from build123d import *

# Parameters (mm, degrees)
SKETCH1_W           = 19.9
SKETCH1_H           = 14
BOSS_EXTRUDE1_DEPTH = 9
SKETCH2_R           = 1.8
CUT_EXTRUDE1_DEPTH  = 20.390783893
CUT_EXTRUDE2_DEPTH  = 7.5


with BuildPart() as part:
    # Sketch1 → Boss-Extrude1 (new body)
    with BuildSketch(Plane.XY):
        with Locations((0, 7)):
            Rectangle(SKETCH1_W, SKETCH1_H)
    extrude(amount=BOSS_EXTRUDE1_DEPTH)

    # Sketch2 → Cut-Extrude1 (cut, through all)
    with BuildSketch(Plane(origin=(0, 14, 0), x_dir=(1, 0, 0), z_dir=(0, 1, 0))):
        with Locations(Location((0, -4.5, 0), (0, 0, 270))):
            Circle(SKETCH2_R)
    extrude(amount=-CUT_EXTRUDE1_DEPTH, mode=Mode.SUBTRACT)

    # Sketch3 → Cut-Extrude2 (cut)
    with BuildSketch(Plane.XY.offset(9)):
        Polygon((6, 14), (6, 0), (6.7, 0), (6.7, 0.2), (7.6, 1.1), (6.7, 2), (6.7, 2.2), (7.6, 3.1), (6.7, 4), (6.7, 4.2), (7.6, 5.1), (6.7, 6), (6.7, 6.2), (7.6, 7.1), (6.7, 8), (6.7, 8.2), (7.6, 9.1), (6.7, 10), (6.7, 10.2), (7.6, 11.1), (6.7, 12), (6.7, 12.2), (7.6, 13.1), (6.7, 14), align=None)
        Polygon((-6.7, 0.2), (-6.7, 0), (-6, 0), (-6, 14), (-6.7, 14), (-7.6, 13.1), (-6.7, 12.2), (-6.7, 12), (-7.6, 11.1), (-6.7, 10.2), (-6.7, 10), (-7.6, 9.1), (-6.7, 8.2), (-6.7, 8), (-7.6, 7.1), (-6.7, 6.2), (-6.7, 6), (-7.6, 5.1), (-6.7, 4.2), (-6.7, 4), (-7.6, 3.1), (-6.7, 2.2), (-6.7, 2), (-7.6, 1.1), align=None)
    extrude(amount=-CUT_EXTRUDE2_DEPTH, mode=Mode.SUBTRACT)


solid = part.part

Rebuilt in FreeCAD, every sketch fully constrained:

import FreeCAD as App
import Part
import Sketcher

doc = App.newDocument("Part")
body = doc.addObject("PartDesign::Body", "Body")

sketch1 = body.newObject("Sketcher::SketchObject", "Sketch")
sketch1.AttachmentSupport = (doc.getObject("XY_Plane"), [""])
sketch1.MapMode = "FlatFace"
sketch1.addGeometry(Part.LineSegment(App.Vector(-10, 14, 0), App.Vector(-10, 0, 0)), False)
sketch1.addGeometry(Part.LineSegment(App.Vector(-10, 0, 0), App.Vector(10, 0, 0)), False)
sketch1.addGeometry(Part.LineSegment(App.Vector(10, 0, 0), App.Vector(10, 14, 0)), False)
sketch1.addGeometry(Part.LineSegment(App.Vector(10, 14, 0), App.Vector(-10, 14, 0)), False)
sketch1.addConstraint(Sketcher.Constraint("Coincident", 0, 2, 1, 1))
sketch1.addConstraint(Sketcher.Constraint("Coincident", 1, 2, 2, 1))
sketch1.addConstraint(Sketcher.Constraint("Coincident", 2, 2, 3, 1))
sketch1.addConstraint(Sketcher.Constraint("Coincident", 3, 2, 0, 1))
sketch1.addConstraint(Sketcher.Constraint("Vertical", 0))
sketch1.addConstraint(Sketcher.Constraint("Horizontal", 1))
sketch1.addConstraint(Sketcher.Constraint("Vertical", 2))
sketch1.addConstraint(Sketcher.Constraint("Horizontal", 3))
sketch1.addConstraint(Sketcher.Constraint("Symmetric", 0, 2, 1, 2, -1, 1))
sketch1.addConstraint(Sketcher.Constraint("DistanceY", 0, 2, 0, 1, 14.0))
sketch1.addConstraint(Sketcher.Constraint("DistanceX", 1, 1, 1, 2, 19.9))
pad1 = body.newObject("PartDesign::Pad", "Pad")
pad1.Profile = sketch1
pad1.Length = 9

sketch2 = body.newObject("Sketcher::SketchObject", "Sketch001")
sketch2.AttachmentSupport = (doc.getObject("XZ_Plane"), [""])
sketch2.MapMode = "FlatFace"
sketch2.AttachmentOffset = App.Placement(App.Vector(0, 0, -14), App.Rotation())
sketch2.addGeometry(Part.Circle(App.Vector(0, 4.5, 0), App.Vector(0, 0, 1), 1.8), False)
sketch2.addConstraint(Sketcher.Constraint("PointOnObject", 0, 3, -2))
sketch2.addConstraint(Sketcher.Constraint("Diameter", 0, 3.6))
sketch2.addConstraint(Sketcher.Constraint("DistanceY", -1, 1, 0, 3, 4.5))
pocket1 = body.newObject("PartDesign::Pocket", "Pocket")
pocket1.Profile = sketch2
pocket1.Type = "ThroughAll"
pocket1.Reversed = True

sketch3 = body.newObject("Sketcher::SketchObject", "Sketch002")
sketch3.AttachmentSupport = (doc.getObject("XY_Plane"), [""])
sketch3.MapMode = "FlatFace"
sketch3.AttachmentOffset = App.Placement(App.Vector(0, 0, 9), App.Rotation())
sketch3.addGeometry(Part.LineSegment(App.Vector(6, 14, 0), App.Vector(6, 0, 0)), False)
sketch3.addGeometry(Part.LineSegment(App.Vector(6, 0, 0), App.Vector(6.7, 0, 0)), False)
sketch3.addGeometry(Part.LineSegment(App.Vector(6.7, 0, 0), App.Vector(6.7, 0.2, 0)), False)
sketch3.addGeometry(Part.LineSegment(App.Vector(6.7, 0.2, 0), App.Vector(7.6, 1.1, 0)), False)
sketch3.addGeometry(Part.LineSegment(App.Vector(7.6, 1.1, 0), App.Vector(6.7, 2, 0)), False)
sketch3.addGeometry(Part.LineSegment(App.Vector(6.7, 2, 0), App.Vector(6.7, 2.2, 0)), False)
sketch3.addGeometry(Part.LineSegment(App.Vector(6.7, 2.2, 0), App.Vector(7.6, 3.1, 0)), False)
sketch3.addGeometry(Part.LineSegment(App.Vector(7.6, 3.1, 0), App.Vector(6.7, 4, 0)), False)
sketch3.addGeometry(Part.LineSegment(App.Vector(6.7, 4, 0), App.Vector(6.7, 4.2, 0)), False)
sketch3.addGeometry(Part.LineSegment(App.Vector(6.7, 4.2, 0), App.Vector(7.6, 5.1, 0)), False)
sketch3.addGeometry(Part.LineSegment(App.Vector(7.6, 5.1, 0), App.Vector(6.7, 6, 0)), False)
sketch3.addGeometry(Part.LineSegment(App.Vector(6.7, 6, 0), App.Vector(6.7, 6.2, 0)), False)
sketch3.addGeometry(Part.LineSegment(App.Vector(6.7, 6.2, 0), App.Vector(7.6, 7.1, 0)), False)
sketch3.addGeometry(Part.LineSegment(App.Vector(7.6, 7.1, 0), App.Vector(6.7, 8, 0)), False)
sketch3.addGeometry(Part.LineSegment(App.Vector(6.7, 8, 0), App.Vector(6.7, 8.2, 0)), False)
sketch3.addGeometry(Part.LineSegment(App.Vector(6.7, 8.2, 0), App.Vector(7.6, 9.1, 0)), False)
sketch3.addGeometry(Part.LineSegment(App.Vector(7.6, 9.1, 0), App.Vector(6.7, 10, 0)), False)
sketch3.addGeometry(Part.LineSegment(App.Vector(6.7, 10, 0), App.Vector(6.7, 10.2, 0)), False)
sketch3.addGeometry(Part.LineSegment(App.Vector(6.7, 10.2, 0), App.Vector(7.6, 11.1, 0)), False)
sketch3.addGeometry(Part.LineSegment(App.Vector(7.6, 11.1, 0), App.Vector(6.7, 12, 0)), False)
sketch3.addGeometry(Part.LineSegment(App.Vector(6.7, 12, 0), App.Vector(6.7, 12.2, 0)), False)
sketch3.addGeometry(Part.LineSegment(App.Vector(6.7, 12.2, 0), App.Vector(7.6, 13.1, 0)), False)
sketch3.addGeometry(Part.LineSegment(App.Vector(7.6, 13.1, 0), App.Vector(6.7, 14, 0)), False)
sketch3.addGeometry(Part.LineSegment(App.Vector(6.7, 14, 0), App.Vector(6, 14, 0)), False)
sketch3.addGeometry(Part.LineSegment(App.Vector(-6.7, 0.2, 0), App.Vector(-6.7, 0, 0)), False)
sketch3.addGeometry(Part.LineSegment(App.Vector(-6.7, 0, 0), App.Vector(-6, 0, 0)), False)
sketch3.addGeometry(Part.LineSegment(App.Vector(-6, 0, 0), App.Vector(-6, 14, 0)), False)
sketch3.addGeometry(Part.LineSegment(App.Vector(-6, 14, 0), App.Vector(-6.7, 14, 0)), False)
sketch3.addGeometry(Part.LineSegment(App.Vector(-6.7, 14, 0), App.Vector(-7.6, 13.1, 0)), False)
sketch3.addGeometry(Part.LineSegment(App.Vector(-7.6, 13.1, 0), App.Vector(-6.7, 12.2, 0)), False)
sketch3.addGeometry(Part.LineSegment(App.Vector(-6.7, 12.2, 0), App.Vector(-6.7, 12, 0)), False)
sketch3.addGeometry(Part.LineSegment(App.Vector(-6.7, 12, 0), App.Vector(-7.6, 11.1, 0)), False)
sketch3.addGeometry(Part.LineSegment(App.Vector(-7.6, 11.1, 0), App.Vector(-6.7, 10.2, 0)), False)
sketch3.addGeometry(Part.LineSegment(App.Vector(-6.7, 10.2, 0), App.Vector(-6.7, 10, 0)), False)
sketch3.addGeometry(Part.LineSegment(App.Vector(-6.7, 10, 0), App.Vector(-7.6, 9.1, 0)), False)
sketch3.addGeometry(Part.LineSegment(App.Vector(-7.6, 9.1, 0), App.Vector(-6.7, 8.2, 0)), False)
sketch3.addGeometry(Part.LineSegment(App.Vector(-6.7, 8.2, 0), App.Vector(-6.7, 8, 0)), False)
sketch3.addGeometry(Part.LineSegment(App.Vector(-6.7, 8, 0), App.Vector(-7.6, 7.1, 0)), False)
sketch3.addGeometry(Part.LineSegment(App.Vector(-7.6, 7.1, 0), App.Vector(-6.7, 6.2, 0)), False)
sketch3.addGeometry(Part.LineSegment(App.Vector(-6.7, 6.2, 0), App.Vector(-6.7, 6, 0)), False)
sketch3.addGeometry(Part.LineSegment(App.Vector(-6.7, 6, 0), App.Vector(-7.6, 5.1, 0)), False)
sketch3.addGeometry(Part.LineSegment(App.Vector(-7.6, 5.1, 0), App.Vector(-6.7, 4.2, 0)), False)
sketch3.addGeometry(Part.LineSegment(App.Vector(-6.7, 4.2, 0), App.Vector(-6.7, 4, 0)), False)
sketch3.addGeometry(Part.LineSegment(App.Vector(-6.7, 4, 0), App.Vector(-7.6, 3.1, 0)), False)
sketch3.addGeometry(Part.LineSegment(App.Vector(-7.6, 3.1, 0), App.Vector(-6.7, 2.2, 0)), False)
sketch3.addGeometry(Part.LineSegment(App.Vector(-6.7, 2.2, 0), App.Vector(-6.7, 2, 0)), False)
sketch3.addGeometry(Part.LineSegment(App.Vector(-6.7, 2, 0), App.Vector(-7.6, 1.1, 0)), False)
sketch3.addGeometry(Part.LineSegment(App.Vector(-7.6, 1.1, 0), App.Vector(-6.7, 0.2, 0)), False)
sketch3.addConstraint(Sketcher.Constraint("Coincident", 0, 2, 1, 1))
sketch3.addConstraint(Sketcher.Constraint("Coincident", 1, 2, 2, 1))
sketch3.addConstraint(Sketcher.Constraint("Coincident", 2, 2, 3, 1))
sketch3.addConstraint(Sketcher.Constraint("Coincident", 3, 2, 4, 1))
sketch3.addConstraint(Sketcher.Constraint("Coincident", 4, 2, 5, 1))
sketch3.addConstraint(Sketcher.Constraint("Coincident", 5, 2, 6, 1))
sketch3.addConstraint(Sketcher.Constraint("Coincident", 6, 2, 7, 1))
sketch3.addConstraint(Sketcher.Constraint("Coincident", 7, 2, 8, 1))
sketch3.addConstraint(Sketcher.Constraint("Coincident", 8, 2, 9, 1))
sketch3.addConstraint(Sketcher.Constraint("Coincident", 9, 2, 10, 1))
sketch3.addConstraint(Sketcher.Constraint("Coincident", 10, 2, 11, 1))
sketch3.addConstraint(Sketcher.Constraint("Coincident", 11, 2, 12, 1))
sketch3.addConstraint(Sketcher.Constraint("Coincident", 12, 2, 13, 1))
sketch3.addConstraint(Sketcher.Constraint("Coincident", 13, 2, 14, 1))
sketch3.addConstraint(Sketcher.Constraint("Coincident", 14, 2, 15, 1))
sketch3.addConstraint(Sketcher.Constraint("Coincident", 15, 2, 16, 1))
sketch3.addConstraint(Sketcher.Constraint("Coincident", 16, 2, 17, 1))
sketch3.addConstraint(Sketcher.Constraint("Coincident", 17, 2, 18, 1))
sketch3.addConstraint(Sketcher.Constraint("Coincident", 18, 2, 19, 1))
sketch3.addConstraint(Sketcher.Constraint("Coincident", 19, 2, 20, 1))
sketch3.addConstraint(Sketcher.Constraint("Coincident", 20, 2, 21, 1))
sketch3.addConstraint(Sketcher.Constraint("Coincident", 21, 2, 22, 1))
sketch3.addConstraint(Sketcher.Constraint("Coincident", 22, 2, 23, 1))
sketch3.addConstraint(Sketcher.Constraint("Coincident", 23, 2, 0, 1))
sketch3.addConstraint(Sketcher.Constraint("Coincident", 24, 2, 25, 1))
sketch3.addConstraint(Sketcher.Constraint("Coincident", 25, 2, 26, 1))
sketch3.addConstraint(Sketcher.Constraint("Coincident", 26, 2, 27, 1))
sketch3.addConstraint(Sketcher.Constraint("Coincident", 27, 2, 28, 1))
sketch3.addConstraint(Sketcher.Constraint("Coincident", 28, 2, 29, 1))
sketch3.addConstraint(Sketcher.Constraint("Coincident", 29, 2, 30, 1))
sketch3.addConstraint(Sketcher.Constraint("Coincident", 30, 2, 31, 1))
sketch3.addConstraint(Sketcher.Constraint("Coincident", 31, 2, 32, 1))
sketch3.addConstraint(Sketcher.Constraint("Coincident", 32, 2, 33, 1))
sketch3.addConstraint(Sketcher.Constraint("Coincident", 33, 2, 34, 1))
sketch3.addConstraint(Sketcher.Constraint("Coincident", 34, 2, 35, 1))
sketch3.addConstraint(Sketcher.Constraint("Coincident", 35, 2, 36, 1))
sketch3.addConstraint(Sketcher.Constraint("Coincident", 36, 2, 37, 1))
sketch3.addConstraint(Sketcher.Constraint("Coincident", 37, 2, 38, 1))
sketch3.addConstraint(Sketcher.Constraint("Coincident", 38, 2, 39, 1))
sketch3.addConstraint(Sketcher.Constraint("Coincident", 39, 2, 40, 1))
sketch3.addConstraint(Sketcher.Constraint("Coincident", 40, 2, 41, 1))
sketch3.addConstraint(Sketcher.Constraint("Coincident", 41, 2, 42, 1))
sketch3.addConstraint(Sketcher.Constraint("Coincident", 42, 2, 43, 1))
sketch3.addConstraint(Sketcher.Constraint("Coincident", 43, 2, 44, 1))
sketch3.addConstraint(Sketcher.Constraint("Coincident", 44, 2, 45, 1))
sketch3.addConstraint(Sketcher.Constraint("Coincident", 45, 2, 46, 1))
sketch3.addConstraint(Sketcher.Constraint("Coincident", 46, 2, 47, 1))
sketch3.addConstraint(Sketcher.Constraint("Coincident", 47, 2, 24, 1))
sketch3.addConstraint(Sketcher.Constraint("Vertical", 0))
sketch3.addConstraint(Sketcher.Constraint("Horizontal", 1))
sketch3.addConstraint(Sketcher.Constraint("Vertical", 2))
sketch3.addConstraint(Sketcher.Constraint("Vertical", 5))
sketch3.addConstraint(Sketcher.Constraint("Vertical", 8))
sketch3.addConstraint(Sketcher.Constraint("Vertical", 11))
sketch3.addConstraint(Sketcher.Constraint("Vertical", 14))
sketch3.addConstraint(Sketcher.Constraint("Vertical", 17))
sketch3.addConstraint(Sketcher.Constraint("Vertical", 20))
sketch3.addConstraint(Sketcher.Constraint("Horizontal", 23))
sketch3.addConstraint(Sketcher.Constraint("Vertical", 24))
sketch3.addConstraint(Sketcher.Constraint("Horizontal", 25))
sketch3.addConstraint(Sketcher.Constraint("Vertical", 26))
sketch3.addConstraint(Sketcher.Constraint("Horizontal", 27))
sketch3.addConstraint(Sketcher.Constraint("Vertical", 30))
sketch3.addConstraint(Sketcher.Constraint("Vertical", 33))
sketch3.addConstraint(Sketcher.Constraint("Vertical", 36))
sketch3.addConstraint(Sketcher.Constraint("Vertical", 39))
sketch3.addConstraint(Sketcher.Constraint("Vertical", 42))
sketch3.addConstraint(Sketcher.Constraint("Vertical", 45))
sketch3.addConstraint(Sketcher.Constraint("Symmetric", 1, 2, 24, 2, -1, 1))
sketch3.addConstraint(Sketcher.Constraint("Symmetric", 0, 2, 25, 2, -2))
sketch3.addConstraint(Sketcher.Constraint("Symmetric", 22, 2, 27, 2, -2))
sketch3.addConstraint(Sketcher.Constraint("Symmetric", 21, 2, 28, 2, -2))
sketch3.addConstraint(Sketcher.Constraint("Symmetric", 20, 2, 29, 2, -2))
sketch3.addConstraint(Sketcher.Constraint("Symmetric", 18, 2, 31, 2, -2))
sketch3.addConstraint(Sketcher.Constraint("Symmetric", 17, 2, 32, 2, -2))
sketch3.addConstraint(Sketcher.Constraint("Symmetric", 15, 2, 34, 2, -2))
sketch3.addConstraint(Sketcher.Constraint("Symmetric", 14, 2, 35, 2, -2))
sketch3.addConstraint(Sketcher.Constraint("Symmetric", 12, 2, 37, 2, -2))
sketch3.addConstraint(Sketcher.Constraint("Symmetric", 11, 2, 38, 2, -2))
sketch3.addConstraint(Sketcher.Constraint("Symmetric", 9, 2, 40, 2, -2))
sketch3.addConstraint(Sketcher.Constraint("Symmetric", 8, 2, 41, 2, -2))
sketch3.addConstraint(Sketcher.Constraint("Symmetric", 6, 2, 43, 2, -2))
sketch3.addConstraint(Sketcher.Constraint("Symmetric", 5, 2, 44, 2, -2))
sketch3.addConstraint(Sketcher.Constraint("Symmetric", 3, 2, 46, 2, -2))
sketch3.addConstraint(Sketcher.Constraint("Perpendicular", 3, 4))
sketch3.addConstraint(Sketcher.Constraint("Perpendicular", 4, 6))
sketch3.addConstraint(Sketcher.Constraint("Perpendicular", 6, 7))
sketch3.addConstraint(Sketcher.Constraint("Perpendicular", 7, 9))
sketch3.addConstraint(Sketcher.Constraint("Perpendicular", 9, 10))
sketch3.addConstraint(Sketcher.Constraint("Perpendicular", 10, 12))
sketch3.addConstraint(Sketcher.Constraint("Perpendicular", 12, 13))
sketch3.addConstraint(Sketcher.Constraint("Perpendicular", 13, 15))
sketch3.addConstraint(Sketcher.Constraint("Perpendicular", 15, 16))
sketch3.addConstraint(Sketcher.Constraint("Perpendicular", 16, 18))
sketch3.addConstraint(Sketcher.Constraint("Perpendicular", 18, 19))
sketch3.addConstraint(Sketcher.Constraint("Perpendicular", 19, 21))
sketch3.addConstraint(Sketcher.Constraint("Perpendicular", 21, 22))
sketch3.addConstraint(Sketcher.Constraint("Perpendicular", 22, 28))
sketch3.addConstraint(Sketcher.Constraint("Perpendicular", 29, 31))
sketch3.addConstraint(Sketcher.Constraint("Perpendicular", 32, 34))
sketch3.addConstraint(Sketcher.Constraint("Perpendicular", 35, 37))
sketch3.addConstraint(Sketcher.Constraint("Perpendicular", 38, 40))
sketch3.addConstraint(Sketcher.Constraint("Perpendicular", 41, 43))
sketch3.addConstraint(Sketcher.Constraint("Perpendicular", 44, 46))
sketch3.addConstraint(Sketcher.Constraint("Perpendicular", 46, 47))
sketch3.addConstraint(Sketcher.Constraint("Vertical", 2, 2, 4, 2))
sketch3.addConstraint(Sketcher.Constraint("Vertical", 3, 2, 6, 2))
sketch3.addConstraint(Sketcher.Constraint("Vertical", 5, 2, 7, 2))
sketch3.addConstraint(Sketcher.Constraint("Vertical", 6, 2, 9, 2))
sketch3.addConstraint(Sketcher.Constraint("Vertical", 8, 2, 10, 2))
sketch3.addConstraint(Sketcher.Constraint("Vertical", 9, 2, 12, 2))
sketch3.addConstraint(Sketcher.Constraint("Vertical", 11, 2, 13, 2))
sketch3.addConstraint(Sketcher.Constraint("Vertical", 12, 2, 15, 2))
sketch3.addConstraint(Sketcher.Constraint("Vertical", 14, 2, 16, 2))
sketch3.addConstraint(Sketcher.Constraint("Vertical", 15, 2, 18, 2))
sketch3.addConstraint(Sketcher.Constraint("Vertical", 17, 2, 19, 2))
sketch3.addConstraint(Sketcher.Constraint("Vertical", 18, 2, 21, 2))
sketch3.addConstraint(Sketcher.Constraint("Vertical", 20, 2, 22, 2))
sketch3.addConstraint(Sketcher.Constraint("Equal", 2, 5))
sketch3.addConstraint(Sketcher.Constraint("Equal", 5, 8))
sketch3.addConstraint(Sketcher.Constraint("Equal", 8, 11))
sketch3.addConstraint(Sketcher.Constraint("Equal", 11, 14))
sketch3.addConstraint(Sketcher.Constraint("Equal", 14, 17))
sketch3.addConstraint(Sketcher.Constraint("Equal", 17, 20))
sketch3.addConstraint(Sketcher.Constraint("DistanceY", 0, 2, 0, 1, 14.0))
sketch3.addConstraint(Sketcher.Constraint("DistanceX", 1, 1, 1, 2, 0.7))
sketch3.addConstraint(Sketcher.Constraint("DistanceY", 2, 1, 2, 2, 0.2))
sketch3.addConstraint(Sketcher.Constraint("DistanceX", -1, 1, 0, 2, 6.0))
pocket2 = body.newObject("PartDesign::Pocket", "Pocket001")
pocket2.Profile = sketch3
pocket2.Length = 7.5

doc.recompute()
